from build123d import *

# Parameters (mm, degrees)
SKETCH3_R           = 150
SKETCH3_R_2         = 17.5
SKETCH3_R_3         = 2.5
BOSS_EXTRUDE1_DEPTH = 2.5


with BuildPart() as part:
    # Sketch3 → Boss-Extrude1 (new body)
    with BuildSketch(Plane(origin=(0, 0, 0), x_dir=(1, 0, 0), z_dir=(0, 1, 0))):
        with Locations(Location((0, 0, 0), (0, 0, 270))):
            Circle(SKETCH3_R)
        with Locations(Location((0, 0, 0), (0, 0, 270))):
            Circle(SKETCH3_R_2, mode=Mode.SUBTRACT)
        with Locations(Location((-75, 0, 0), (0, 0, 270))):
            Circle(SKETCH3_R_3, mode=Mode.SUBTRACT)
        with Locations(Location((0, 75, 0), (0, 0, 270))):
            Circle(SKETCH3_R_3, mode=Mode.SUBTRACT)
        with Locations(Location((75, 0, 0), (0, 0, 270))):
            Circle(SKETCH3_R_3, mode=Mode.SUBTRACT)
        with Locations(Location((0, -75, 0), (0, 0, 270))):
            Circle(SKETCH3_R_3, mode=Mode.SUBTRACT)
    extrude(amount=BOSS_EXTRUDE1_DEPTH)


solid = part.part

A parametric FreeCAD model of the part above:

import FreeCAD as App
import Part
import Sketcher

doc = App.newDocument("Part")
body = doc.addObject("PartDesign::Body", "Body")

sketch1 = body.newObject("Sketcher::SketchObject", "Sketch")
sketch1.AttachmentSupport = (doc.getObject("XZ_Plane"), [""])
sketch1.MapMode = "FlatFace"
sketch1.addGeometry([
    Part.Circle(App.Vector(0, 0, 0), App.Vector(0, 0, 1), 150),
    Part.Circle(App.Vector(0, -75, 0), App.Vector(0, 0, 1), 2.5),
    Part.Circle(App.Vector(-75, 0, 0), App.Vector(0, 0, 1), 2.5),
    Part.Circle(App.Vector(75, 0, 0), App.Vector(0, 0, 1), 2.5),
    Part.Circle(App.Vector(0, 0, 0), App.Vector(0, 0, 1), 17.5),
    Part.Circle(App.Vector(0, 75, 0), App.Vector(0, 0, 1), 2.5),
], False)
sketch1.addConstraint([
    Sketcher.Constraint("Coincident", 0, 3, -1, 1),
    Sketcher.Constraint("Coincident", 4, 3, -1, 1),
    Sketcher.Constraint("Equal", 1, 2),
    Sketcher.Constraint("Equal", 2, 3),
    Sketcher.Constraint("Equal", 3, 5),
    Sketcher.Constraint("Symmetric", 2, 3, 3, 3, -1, 1),
    Sketcher.Constraint("Symmetric", 1, 3, 5, 3, -1, 1),
    Sketcher.Constraint("PointOnObject", 1, 3, -2),
    Sketcher.Constraint("PointOnObject", 2, 3, -1),
    Sketcher.Constraint("Diameter", 0, 300.0),
    Sketcher.Constraint("Diameter", 1, 5.0),
    Sketcher.Constraint("Diameter", 4, 35.0),
    Sketcher.Constraint("DistanceY", 1, 3, -1, 1, 75.0),
    Sketcher.Constraint("DistanceX", 2, 3, -1, 1, 75.0),
])
pad1 = body.newObject("PartDesign::Pad", "Pad")
pad1.Profile = sketch1
pad1.Length = 2.5
pad1.Reversed = True

doc.recompute()
